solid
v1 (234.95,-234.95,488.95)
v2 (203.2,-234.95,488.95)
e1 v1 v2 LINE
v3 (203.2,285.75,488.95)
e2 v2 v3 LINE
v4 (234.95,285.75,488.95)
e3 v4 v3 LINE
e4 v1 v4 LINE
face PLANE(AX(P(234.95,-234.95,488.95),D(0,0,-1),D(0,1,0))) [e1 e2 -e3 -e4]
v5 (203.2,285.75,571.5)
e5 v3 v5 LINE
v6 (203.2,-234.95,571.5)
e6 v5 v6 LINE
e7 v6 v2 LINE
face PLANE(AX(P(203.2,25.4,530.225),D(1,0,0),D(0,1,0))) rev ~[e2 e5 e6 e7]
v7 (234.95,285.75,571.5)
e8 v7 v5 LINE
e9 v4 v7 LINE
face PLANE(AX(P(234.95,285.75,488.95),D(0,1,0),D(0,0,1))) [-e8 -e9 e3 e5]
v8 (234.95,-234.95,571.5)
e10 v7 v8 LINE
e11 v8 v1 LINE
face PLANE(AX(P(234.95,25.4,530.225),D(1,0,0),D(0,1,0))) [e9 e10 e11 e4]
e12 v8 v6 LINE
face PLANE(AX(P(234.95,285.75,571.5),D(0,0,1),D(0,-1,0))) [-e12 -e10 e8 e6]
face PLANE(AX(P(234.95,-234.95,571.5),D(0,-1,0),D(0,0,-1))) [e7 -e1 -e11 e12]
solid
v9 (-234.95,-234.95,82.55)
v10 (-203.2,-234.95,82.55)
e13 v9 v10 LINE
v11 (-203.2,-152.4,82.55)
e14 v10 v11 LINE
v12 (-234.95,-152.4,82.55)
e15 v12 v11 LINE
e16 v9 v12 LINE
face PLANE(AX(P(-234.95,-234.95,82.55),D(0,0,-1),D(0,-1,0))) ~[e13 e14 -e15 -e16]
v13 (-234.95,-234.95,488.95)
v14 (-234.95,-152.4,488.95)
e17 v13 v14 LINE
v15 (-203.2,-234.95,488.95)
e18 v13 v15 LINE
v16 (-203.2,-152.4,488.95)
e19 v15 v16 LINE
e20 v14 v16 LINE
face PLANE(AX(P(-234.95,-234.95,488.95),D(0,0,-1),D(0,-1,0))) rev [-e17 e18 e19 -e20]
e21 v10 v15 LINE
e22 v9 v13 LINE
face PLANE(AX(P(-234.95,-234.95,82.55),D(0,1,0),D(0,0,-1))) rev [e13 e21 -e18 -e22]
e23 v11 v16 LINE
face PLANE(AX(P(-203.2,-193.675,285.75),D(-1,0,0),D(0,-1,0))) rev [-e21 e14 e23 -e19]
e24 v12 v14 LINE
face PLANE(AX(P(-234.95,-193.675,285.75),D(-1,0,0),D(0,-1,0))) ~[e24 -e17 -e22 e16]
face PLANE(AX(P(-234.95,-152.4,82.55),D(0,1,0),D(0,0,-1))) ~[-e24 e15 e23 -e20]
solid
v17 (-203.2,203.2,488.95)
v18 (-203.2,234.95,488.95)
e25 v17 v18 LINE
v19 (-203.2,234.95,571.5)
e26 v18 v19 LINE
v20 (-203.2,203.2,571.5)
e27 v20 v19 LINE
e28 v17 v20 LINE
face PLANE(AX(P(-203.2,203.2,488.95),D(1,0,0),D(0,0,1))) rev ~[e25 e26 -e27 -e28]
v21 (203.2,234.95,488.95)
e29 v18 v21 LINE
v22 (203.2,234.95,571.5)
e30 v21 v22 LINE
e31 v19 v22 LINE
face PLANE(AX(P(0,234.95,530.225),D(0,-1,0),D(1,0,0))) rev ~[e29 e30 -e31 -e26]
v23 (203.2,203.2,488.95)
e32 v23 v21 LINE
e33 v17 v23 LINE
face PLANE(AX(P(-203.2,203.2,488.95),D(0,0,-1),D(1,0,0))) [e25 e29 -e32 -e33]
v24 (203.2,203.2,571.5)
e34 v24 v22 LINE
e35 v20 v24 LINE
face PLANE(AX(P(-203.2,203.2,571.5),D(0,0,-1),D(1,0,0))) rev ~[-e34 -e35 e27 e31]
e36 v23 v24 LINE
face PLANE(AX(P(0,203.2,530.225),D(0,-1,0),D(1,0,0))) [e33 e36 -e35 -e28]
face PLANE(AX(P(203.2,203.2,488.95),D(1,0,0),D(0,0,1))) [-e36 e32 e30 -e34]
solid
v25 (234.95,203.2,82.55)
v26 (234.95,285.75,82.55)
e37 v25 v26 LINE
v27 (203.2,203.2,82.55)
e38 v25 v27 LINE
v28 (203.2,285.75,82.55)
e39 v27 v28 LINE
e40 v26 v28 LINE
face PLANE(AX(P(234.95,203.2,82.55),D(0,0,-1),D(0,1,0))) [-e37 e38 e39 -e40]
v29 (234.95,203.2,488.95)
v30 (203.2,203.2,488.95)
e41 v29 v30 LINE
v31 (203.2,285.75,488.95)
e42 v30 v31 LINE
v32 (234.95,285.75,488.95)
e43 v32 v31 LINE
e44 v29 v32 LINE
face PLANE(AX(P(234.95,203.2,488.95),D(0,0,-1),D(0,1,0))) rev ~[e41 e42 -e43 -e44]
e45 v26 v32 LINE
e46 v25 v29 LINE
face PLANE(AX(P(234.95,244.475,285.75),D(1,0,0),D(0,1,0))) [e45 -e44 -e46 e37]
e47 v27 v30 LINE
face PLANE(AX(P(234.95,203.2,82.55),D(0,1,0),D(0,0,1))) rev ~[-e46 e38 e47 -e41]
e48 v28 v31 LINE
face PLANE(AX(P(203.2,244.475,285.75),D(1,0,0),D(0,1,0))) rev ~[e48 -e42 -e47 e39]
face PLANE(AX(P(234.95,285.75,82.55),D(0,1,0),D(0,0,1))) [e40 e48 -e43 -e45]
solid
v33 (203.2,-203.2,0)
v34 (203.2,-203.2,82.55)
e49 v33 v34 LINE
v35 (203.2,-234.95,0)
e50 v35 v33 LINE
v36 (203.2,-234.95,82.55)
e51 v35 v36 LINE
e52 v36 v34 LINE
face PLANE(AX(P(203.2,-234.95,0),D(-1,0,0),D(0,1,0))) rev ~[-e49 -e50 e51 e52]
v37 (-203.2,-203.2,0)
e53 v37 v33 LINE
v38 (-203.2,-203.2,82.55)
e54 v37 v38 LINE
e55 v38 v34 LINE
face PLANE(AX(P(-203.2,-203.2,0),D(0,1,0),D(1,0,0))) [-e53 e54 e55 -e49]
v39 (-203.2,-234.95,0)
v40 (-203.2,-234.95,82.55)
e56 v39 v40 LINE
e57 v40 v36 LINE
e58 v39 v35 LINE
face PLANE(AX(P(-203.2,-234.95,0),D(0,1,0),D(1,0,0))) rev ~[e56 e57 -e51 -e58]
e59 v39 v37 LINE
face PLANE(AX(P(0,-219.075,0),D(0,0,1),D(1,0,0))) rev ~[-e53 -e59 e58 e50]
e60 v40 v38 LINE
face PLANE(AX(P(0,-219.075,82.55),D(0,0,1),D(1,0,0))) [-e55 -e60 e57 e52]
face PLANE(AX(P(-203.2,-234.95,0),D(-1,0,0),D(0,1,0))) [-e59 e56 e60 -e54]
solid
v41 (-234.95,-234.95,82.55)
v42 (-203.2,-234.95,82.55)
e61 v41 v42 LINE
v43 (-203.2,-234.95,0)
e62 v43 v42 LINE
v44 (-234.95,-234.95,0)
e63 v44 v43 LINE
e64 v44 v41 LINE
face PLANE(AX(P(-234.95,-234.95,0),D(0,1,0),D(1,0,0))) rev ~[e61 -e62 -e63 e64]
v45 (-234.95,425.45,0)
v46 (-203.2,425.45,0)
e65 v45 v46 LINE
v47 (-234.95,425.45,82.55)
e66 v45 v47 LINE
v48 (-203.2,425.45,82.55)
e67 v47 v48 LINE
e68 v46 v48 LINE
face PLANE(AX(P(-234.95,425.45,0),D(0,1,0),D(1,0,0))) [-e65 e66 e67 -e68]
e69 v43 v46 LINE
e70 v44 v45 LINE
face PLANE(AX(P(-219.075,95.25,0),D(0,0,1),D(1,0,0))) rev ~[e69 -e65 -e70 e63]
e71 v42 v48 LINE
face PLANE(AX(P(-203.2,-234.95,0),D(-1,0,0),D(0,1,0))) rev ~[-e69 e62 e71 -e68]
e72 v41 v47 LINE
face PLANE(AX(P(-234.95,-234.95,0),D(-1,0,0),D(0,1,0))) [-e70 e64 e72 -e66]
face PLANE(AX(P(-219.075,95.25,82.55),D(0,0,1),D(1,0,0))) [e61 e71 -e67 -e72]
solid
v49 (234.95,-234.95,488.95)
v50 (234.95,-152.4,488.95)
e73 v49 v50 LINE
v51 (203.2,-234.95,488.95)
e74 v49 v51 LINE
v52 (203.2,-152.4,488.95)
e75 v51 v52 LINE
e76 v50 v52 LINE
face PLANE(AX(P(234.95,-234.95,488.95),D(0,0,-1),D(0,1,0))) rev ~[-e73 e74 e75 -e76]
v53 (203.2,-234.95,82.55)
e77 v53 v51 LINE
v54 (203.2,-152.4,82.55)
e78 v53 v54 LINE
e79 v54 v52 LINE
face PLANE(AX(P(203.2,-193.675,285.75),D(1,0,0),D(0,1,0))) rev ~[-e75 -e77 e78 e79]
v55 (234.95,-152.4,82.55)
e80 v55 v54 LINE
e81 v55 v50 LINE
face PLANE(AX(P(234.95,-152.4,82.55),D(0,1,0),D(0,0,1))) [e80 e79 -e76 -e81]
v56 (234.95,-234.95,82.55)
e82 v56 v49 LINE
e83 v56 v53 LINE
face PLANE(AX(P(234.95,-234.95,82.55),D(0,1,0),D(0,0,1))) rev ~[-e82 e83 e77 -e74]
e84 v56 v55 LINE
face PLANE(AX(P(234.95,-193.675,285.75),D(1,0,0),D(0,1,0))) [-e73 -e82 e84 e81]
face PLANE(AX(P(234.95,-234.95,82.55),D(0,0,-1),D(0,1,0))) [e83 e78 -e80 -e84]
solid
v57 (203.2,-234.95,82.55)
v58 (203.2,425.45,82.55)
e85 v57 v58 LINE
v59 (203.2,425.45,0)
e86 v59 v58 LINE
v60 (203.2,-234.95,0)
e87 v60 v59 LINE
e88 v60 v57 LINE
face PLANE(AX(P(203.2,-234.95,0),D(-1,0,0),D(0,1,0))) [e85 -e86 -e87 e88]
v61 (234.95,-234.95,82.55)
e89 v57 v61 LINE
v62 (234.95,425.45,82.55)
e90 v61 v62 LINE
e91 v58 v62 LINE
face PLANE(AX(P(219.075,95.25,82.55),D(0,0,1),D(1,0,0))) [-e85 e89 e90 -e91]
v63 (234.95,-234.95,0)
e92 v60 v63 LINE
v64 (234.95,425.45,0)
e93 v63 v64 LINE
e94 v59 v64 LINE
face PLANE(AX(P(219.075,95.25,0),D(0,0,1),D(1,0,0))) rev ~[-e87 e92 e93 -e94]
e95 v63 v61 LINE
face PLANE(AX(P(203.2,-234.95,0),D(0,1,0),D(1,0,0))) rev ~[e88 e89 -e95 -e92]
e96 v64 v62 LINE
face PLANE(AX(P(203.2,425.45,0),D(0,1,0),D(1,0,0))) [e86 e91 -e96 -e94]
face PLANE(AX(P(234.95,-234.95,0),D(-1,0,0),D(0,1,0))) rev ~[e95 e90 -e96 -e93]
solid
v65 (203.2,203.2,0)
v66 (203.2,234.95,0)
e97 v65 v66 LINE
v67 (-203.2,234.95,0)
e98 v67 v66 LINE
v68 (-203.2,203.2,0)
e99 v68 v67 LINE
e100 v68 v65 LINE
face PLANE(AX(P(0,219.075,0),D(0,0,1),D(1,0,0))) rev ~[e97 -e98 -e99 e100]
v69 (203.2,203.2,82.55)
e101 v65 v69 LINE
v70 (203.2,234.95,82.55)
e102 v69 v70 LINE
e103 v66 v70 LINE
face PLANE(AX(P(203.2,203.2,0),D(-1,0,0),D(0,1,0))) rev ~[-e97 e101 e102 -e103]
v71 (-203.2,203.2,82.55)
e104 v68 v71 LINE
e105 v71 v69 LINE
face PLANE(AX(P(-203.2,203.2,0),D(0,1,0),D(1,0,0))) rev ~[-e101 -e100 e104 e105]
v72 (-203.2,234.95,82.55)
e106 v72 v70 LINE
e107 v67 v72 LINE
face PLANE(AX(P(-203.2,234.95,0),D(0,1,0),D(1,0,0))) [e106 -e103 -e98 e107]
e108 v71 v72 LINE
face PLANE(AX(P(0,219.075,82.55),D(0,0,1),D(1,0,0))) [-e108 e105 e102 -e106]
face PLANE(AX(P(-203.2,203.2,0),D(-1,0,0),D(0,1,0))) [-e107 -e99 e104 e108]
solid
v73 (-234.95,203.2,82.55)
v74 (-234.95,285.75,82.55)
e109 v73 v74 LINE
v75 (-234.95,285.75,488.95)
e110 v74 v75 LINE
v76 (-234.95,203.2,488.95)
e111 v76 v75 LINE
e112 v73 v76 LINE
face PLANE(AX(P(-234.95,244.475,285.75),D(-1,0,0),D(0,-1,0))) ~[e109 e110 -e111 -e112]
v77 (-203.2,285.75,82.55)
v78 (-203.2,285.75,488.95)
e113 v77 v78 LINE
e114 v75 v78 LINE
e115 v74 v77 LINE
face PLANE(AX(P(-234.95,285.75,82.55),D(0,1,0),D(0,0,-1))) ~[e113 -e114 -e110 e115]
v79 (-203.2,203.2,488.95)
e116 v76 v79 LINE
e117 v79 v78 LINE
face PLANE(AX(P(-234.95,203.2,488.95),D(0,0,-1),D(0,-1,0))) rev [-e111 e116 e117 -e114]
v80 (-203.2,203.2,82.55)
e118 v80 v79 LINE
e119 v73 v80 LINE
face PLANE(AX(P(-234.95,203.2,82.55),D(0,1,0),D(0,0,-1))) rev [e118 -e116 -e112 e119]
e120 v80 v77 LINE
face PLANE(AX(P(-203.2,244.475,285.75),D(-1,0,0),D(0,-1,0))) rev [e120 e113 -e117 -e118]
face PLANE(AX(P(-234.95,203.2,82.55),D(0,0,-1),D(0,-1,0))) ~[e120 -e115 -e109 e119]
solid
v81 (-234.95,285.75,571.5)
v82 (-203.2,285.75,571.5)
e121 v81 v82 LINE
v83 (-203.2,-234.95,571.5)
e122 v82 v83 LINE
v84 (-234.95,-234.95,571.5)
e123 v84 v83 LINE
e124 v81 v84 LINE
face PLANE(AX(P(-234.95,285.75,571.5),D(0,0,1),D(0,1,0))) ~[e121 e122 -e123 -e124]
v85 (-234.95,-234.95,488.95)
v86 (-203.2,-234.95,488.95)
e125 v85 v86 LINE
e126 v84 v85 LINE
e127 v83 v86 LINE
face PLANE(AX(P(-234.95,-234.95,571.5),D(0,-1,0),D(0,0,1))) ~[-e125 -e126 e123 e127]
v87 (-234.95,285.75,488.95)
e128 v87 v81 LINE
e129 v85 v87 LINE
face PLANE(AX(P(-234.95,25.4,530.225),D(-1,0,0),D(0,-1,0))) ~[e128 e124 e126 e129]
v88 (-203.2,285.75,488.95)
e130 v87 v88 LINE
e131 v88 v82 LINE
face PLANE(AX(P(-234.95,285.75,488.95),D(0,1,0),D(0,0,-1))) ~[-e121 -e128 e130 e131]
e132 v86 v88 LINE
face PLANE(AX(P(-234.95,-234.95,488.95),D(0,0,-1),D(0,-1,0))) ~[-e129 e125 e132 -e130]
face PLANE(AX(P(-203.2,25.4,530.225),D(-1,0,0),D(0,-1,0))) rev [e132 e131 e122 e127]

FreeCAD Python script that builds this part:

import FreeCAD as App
import Part
import Sketcher
from FreeCAD import Vector
Q = App.Units.Quantity

doc = App.newDocument("Part")
body = doc.addObject("PartDesign::Body", "Body")
body.AllowCompound = True

# Sketch on XY plane
sketch1 = body.newObject("Sketcher::SketchObject", "Sketch")
sketch1.AttachmentSupport = (doc.getObject("XY_Plane"), [""])
sketch1.MapMode = "FlatFace"
sketch1.addGeometry([
    Part.LineSegment(Vector(-203, 235, 0), Vector(-203, 203, 0)),  # 0
    Part.LineSegment(Vector(-203, 203, 0), Vector(203, 203, 0)),  # 1
    Part.LineSegment(Vector(203, 203, 0), Vector(203, 235, 0)),  # 2
    Part.LineSegment(Vector(203, 235, 0), Vector(-203, 235, 0)),  # 3
    Part.LineSegment(Vector(-203, -203, 0), Vector(-203, -235, 0)),  # 4
    Part.LineSegment(Vector(-203, -235, 0), Vector(203, -235, 0)),  # 5
    Part.LineSegment(Vector(203, -235, 0), Vector(203, -203, 0)),  # 6
    Part.LineSegment(Vector(203, -203, 0), Vector(-203, -203, 0)),  # 7
], False)
sketch1.addConstraint([
    Sketcher.Constraint("Coincident", 0, 2, 1, 1),
    Sketcher.Constraint("Coincident", 1, 2, 2, 1),
    Sketcher.Constraint("Coincident", 2, 2, 3, 1),
    Sketcher.Constraint("Coincident", 3, 2, 0, 1),
    Sketcher.Constraint("Coincident", 4, 2, 5, 1),
    Sketcher.Constraint("Coincident", 5, 2, 6, 1),
    Sketcher.Constraint("Coincident", 6, 2, 7, 1),
    Sketcher.Constraint("Coincident", 7, 2, 4, 1),
    Sketcher.Constraint("Vertical", 0),
    Sketcher.Constraint("Horizontal", 1),
    Sketcher.Constraint("Vertical", 2),
    Sketcher.Constraint("Horizontal", 3),
    Sketcher.Constraint("Vertical", 4),
    Sketcher.Constraint("Horizontal", 5),
    Sketcher.Constraint("Vertical", 6),
    Sketcher.Constraint("Horizontal", 7),
    Sketcher.Constraint("Symmetric", 2, 2, 4, 2, -1, 1),
    Sketcher.Constraint("Symmetric", 0, 2, 6, 2, -1, 1),
    Sketcher.Constraint("Vertical", 3, 2, 4, 2),
    Sketcher.Constraint("DistanceX", 1, 1, 1, 2, Q("16 in")),
    Sketcher.Constraint("DistanceY", -1, 1, 0, 2, Q("8 in")),
    Sketcher.Constraint("DistanceY", 0, 2, 0, 1, Q("1.25 in")),
])
pad1 = body.newObject("PartDesign::Pad", "Pad")
pad1.Profile = sketch1
pad1.Length = Q("3.25 in")
body2 = doc.addObject("PartDesign::Body", "Body001")
body2.AllowCompound = True

# Sketch on XY plane
sketch2 = body2.newObject("Sketcher::SketchObject", "Sketch001")
sketch2.AttachmentSupport = (doc.getObject("XY_Plane001"), [""])
sketch2.MapMode = "FlatFace"
sketch2.addGeometry([
    Part.LineSegment(Vector(-235, 425, 0), Vector(-235, -235, 0)),  # 0
    Part.LineSegment(Vector(-235, -235, 0), Vector(-203, -235, 0)),  # 1
    Part.LineSegment(Vector(-203, -235, 0), Vector(-203, 425, 0)),  # 2
    Part.LineSegment(Vector(-203, 425, 0), Vector(-235, 425, 0)),  # 3
    Part.LineSegment(Vector(203, 425, 0), Vector(203, -235, 0)),  # 4
    Part.LineSegment(Vector(203, -235, 0), Vector(235, -235, 0)),  # 5
    Part.LineSegment(Vector(235, -235, 0), Vector(235, 425, 0)),  # 6
    Part.LineSegment(Vector(235, 425, 0), Vector(203, 425, 0)),  # 7
], False)
sketch2.addConstraint([
    Sketcher.Constraint("Coincident", 0, 2, 1, 1),
    Sketcher.Constraint("Coincident", 1, 2, 2, 1),
    Sketcher.Constraint("Coincident", 2, 2, 3, 1),
    Sketcher.Constraint("Coincident", 3, 2, 0, 1),
    Sketcher.Constraint("Coincident", 4, 2, 5, 1),
    Sketcher.Constraint("Coincident", 5, 2, 6, 1),
    Sketcher.Constraint("Coincident", 6, 2, 7, 1),
    Sketcher.Constraint("Coincident", 7, 2, 4, 1),
    Sketcher.Constraint("Vertical", 0),
    Sketcher.Constraint("Horizontal", 1),
    Sketcher.Constraint("Vertical", 2),
    Sketcher.Constraint("Horizontal", 3),
    Sketcher.Constraint("Vertical", 4),
    Sketcher.Constraint("Horizontal", 5),
    Sketcher.Constraint("Vertical", 6),
    Sketcher.Constraint("Horizontal", 7),
    Sketcher.Constraint("Symmetric", 1, 2, 4, 2, -2),
    Sketcher.Constraint("Symmetric", 3, 2, 6, 2, -2),
    Sketcher.Constraint("DistanceY", 0, 2, 0, 1, Q("26 in")),
    Sketcher.Constraint("DistanceX", 1, 2, -1, 1, Q("8 in")),
    Sketcher.Constraint("DistanceX", 1, 1, 1, 2, Q("1.25 in")),
    Sketcher.Constraint("DistanceY", 0, 2, -1, 1, Q("9.25 in")),
])
pad2 = body2.newObject("PartDesign::Pad", "Pad001")
pad2.Profile = sketch2
pad2.Length = Q("3.25 in")
body3 = doc.addObject("PartDesign::Body", "Body002")
body3.AllowCompound = True

# Sketch on YZ plane
sketch3 = body3.newObject("Sketcher::SketchObject", "Sketch002")
sketch3.AttachmentSupport = (doc.getObject("YZ_Plane002"), [""])
sketch3.MapMode = "FlatFace"
sketch3.AttachmentOffset = App.Placement(Vector(0, 0, 9.25 * 25.4), App.Rotation())
sketch3.addGeometry([
    Part.LineSegment(Vector(-235, 489, 0), Vector(-235, 83, 0)),  # 0
    Part.LineSegment(Vector(-235, 83, 0), Vector(-152, 83, 0)),  # 1
    Part.LineSegment(Vector(-152, 83, 0), Vector(-152, 489, 0)),  # 2
    Part.LineSegment(Vector(-152, 489, 0), Vector(-235, 489, 0)),  # 3
    Part.LineSegment(Vector(203, 489, 0), Vector(203, 83, 0)),  # 4
    Part.LineSegment(Vector(203, 83, 0), Vector(286, 83, 0)),  # 5
    Part.LineSegment(Vector(286, 83, 0), Vector(286, 489, 0)),  # 6
    Part.LineSegment(Vector(286, 489, 0), Vector(203, 489, 0)),  # 7
], False)
sketch3.addConstraint([
    Sketcher.Constraint("Coincident", 0, 2, 1, 1),
    Sketcher.Constraint("Coincident", 1, 2, 2, 1),
    Sketcher.Constraint("Coincident", 2, 2, 3, 1),
    Sketcher.Constraint("Coincident", 3, 2, 0, 1),
    Sketcher.Constraint("Coincident", 4, 2, 5, 1),
    Sketcher.Constraint("Coincident", 5, 2, 6, 1),
    Sketcher.Constraint("Coincident", 6, 2, 7, 1),
    Sketcher.Constraint("Coincident", 7, 2, 4, 1),
    Sketcher.Constraint("Vertical", 0),
    Sketcher.Constraint("Horizontal", 1),
    Sketcher.Constraint("Vertical", 2),
    Sketcher.Constraint("Horizontal", 3),
    Sketcher.Constraint("Vertical", 4),
    Sketcher.Constraint("Horizontal", 5),
    Sketcher.Constraint("Vertical", 6),
    Sketcher.Constraint("Horizontal", 7),
    Sketcher.Constraint("Horizontal", 1, 2, 4, 2),
    Sketcher.Constraint("Horizontal", 3, 2, 6, 2),
    Sketcher.Constraint("Equal", 3, 5),
    Sketcher.Constraint("DistanceY", 0, 2, 0, 1, Q("16 in")),
    Sketcher.Constraint("DistanceX", 1, 2, -1, 1, Q("6 in")),
    Sketcher.Constraint("DistanceX", -1, 1, 4, 2, Q("8 in")),
    Sketcher.Constraint("DistanceX", 1, 1, 1, 2, Q("3.25 in")),
    Sketcher.Constraint("DistanceY", -1, 1, 0, 2, Q("3.25 in")),
])
pad3 = body3.newObject("PartDesign::Pad", "Pad002")
pad3.Profile = sketch3
pad3.Length = Q("1.25 in")
pad3.Reversed = True
body4 = doc.addObject("PartDesign::Body", "Body003")

# Sketch on YZ plane
sketch4 = body4.newObject("Sketcher::SketchObject", "Sketch003")
sketch4.AttachmentSupport = (doc.getObject("YZ_Plane003"), [""])
sketch4.MapMode = "FlatFace"
sketch4.AttachmentOffset = App.Placement(Vector(0, 0, 9.25 * 25.4), App.Rotation())
sketch4.addGeometry([
    Part.LineSegment(Vector(-235, 572, 0), Vector(-235, 489, 0)),
    Part.LineSegment(Vector(-235, 489, 0), Vector(286, 489, 0)),
    Part.LineSegment(Vector(286, 489, 0), Vector(286, 572, 0)),
    Part.LineSegment(Vector(286, 572, 0), Vector(-235, 572, 0)),
], False)
sketch4.addConstraint([
    Sketcher.Constraint("Coincident", 0, 2, 1, 1),
    Sketcher.Constraint("Coincident", 1, 2, 2, 1),
    Sketcher.Constraint("Coincident", 2, 2, 3, 1),
    Sketcher.Constraint("Coincident", 3, 2, 0, 1),
    Sketcher.Constraint("Vertical", 0),
    Sketcher.Constraint("Horizontal", 1),
    Sketcher.Constraint("Vertical", 2),
    Sketcher.Constraint("Horizontal", 3),
    Sketcher.Constraint("DistanceX", 1, 1, 1, 2, Q("20.5 in")),
    Sketcher.Constraint("DistanceY", 0, 2, 0, 1, Q("3.25 in")),
    Sketcher.Constraint("DistanceY", -1, 1, 2, 2, Q("22.5 in")),
    Sketcher.Constraint("DistanceX", 0, 2, -1, 1, Q("9.25 in")),
])
pad4 = body4.newObject("PartDesign::Pad", "Pad003")
pad4.Profile = sketch4
pad4.Length = Q("1.25 in")
pad4.Reversed = True
body5 = doc.addObject("PartDesign::Body", "Body004")
body5.AllowCompound = True
doc.recompute()

mirroring = doc.addObject("Part::Mirroring", "Mirroring")
mirroring.Source = body3
mirroring.Base = Vector(0, 0, 0)
mirroring.Normal = Vector(1, 0, 0)
body5.BaseFeature = mirroring
doc.recompute()
body6 = doc.addObject("PartDesign::Body", "Body005")
doc.recompute()

mirroring2 = doc.addObject("Part::Mirroring", "Mirroring001")
mirroring2.Source = body4
mirroring2.Base = Vector(0, 0, 0)
mirroring2.Normal = Vector(1, 0, 0)
body6.BaseFeature = mirroring2
doc.recompute()
body7 = doc.addObject("PartDesign::Body", "Body006")

# Sketch on XZ plane
sketch5 = body7.newObject("Sketcher::SketchObject", "Sketch004")
sketch5.AttachmentSupport = (doc.getObject("XZ_Plane006"), [""])
sketch5.MapMode = "FlatFace"
sketch5.AttachmentOffset = App.Placement(Vector(0, 0, -8 * 25.4), App.Rotation())
sketch5.addGeometry([
    Part.LineSegment(Vector(-203, 572, 0), Vector(-203, 489, 0)),
    Part.LineSegment(Vector(-203, 489, 0), Vector(203, 489, 0)),
    Part.LineSegment(Vector(203, 489, 0), Vector(203, 572, 0)),
    Part.LineSegment(Vector(203, 572, 0), Vector(-203, 572, 0)),
], False)
sketch5.addConstraint([
    Sketcher.Constraint("Coincident", 0, 2, 1, 1),
    Sketcher.Constraint("Coincident", 1, 2, 2, 1),
    Sketcher.Constraint("Coincident", 2, 2, 3, 1),
    Sketcher.Constraint("Coincident", 3, 2, 0, 1),
    Sketcher.Constraint("Vertical", 0),
    Sketcher.Constraint("Horizontal", 1),
    Sketcher.Constraint("Vertical", 2),
    Sketcher.Constraint("Horizontal", 3),
    Sketcher.Constraint("DistanceX", 1, 1, 1, 2, Q("16 in")),
    Sketcher.Constraint("DistanceX", 0, 2, -1, 1, Q("8 in")),
    Sketcher.Constraint("DistanceY", 0, 2, 0, 1, Q("3.25 in")),
    Sketcher.Constraint("DistanceY", -1, 1, 2, 2, Q("22.5 in")),
])
pad5 = body7.newObject("PartDesign::Pad", "Pad004")
pad5.Profile = sketch5
pad5.Length = Q("1.25 in")
pad5.Reversed = True
mirroring.Visibility = False
mirroring2.Visibility = False

doc.recompute()
